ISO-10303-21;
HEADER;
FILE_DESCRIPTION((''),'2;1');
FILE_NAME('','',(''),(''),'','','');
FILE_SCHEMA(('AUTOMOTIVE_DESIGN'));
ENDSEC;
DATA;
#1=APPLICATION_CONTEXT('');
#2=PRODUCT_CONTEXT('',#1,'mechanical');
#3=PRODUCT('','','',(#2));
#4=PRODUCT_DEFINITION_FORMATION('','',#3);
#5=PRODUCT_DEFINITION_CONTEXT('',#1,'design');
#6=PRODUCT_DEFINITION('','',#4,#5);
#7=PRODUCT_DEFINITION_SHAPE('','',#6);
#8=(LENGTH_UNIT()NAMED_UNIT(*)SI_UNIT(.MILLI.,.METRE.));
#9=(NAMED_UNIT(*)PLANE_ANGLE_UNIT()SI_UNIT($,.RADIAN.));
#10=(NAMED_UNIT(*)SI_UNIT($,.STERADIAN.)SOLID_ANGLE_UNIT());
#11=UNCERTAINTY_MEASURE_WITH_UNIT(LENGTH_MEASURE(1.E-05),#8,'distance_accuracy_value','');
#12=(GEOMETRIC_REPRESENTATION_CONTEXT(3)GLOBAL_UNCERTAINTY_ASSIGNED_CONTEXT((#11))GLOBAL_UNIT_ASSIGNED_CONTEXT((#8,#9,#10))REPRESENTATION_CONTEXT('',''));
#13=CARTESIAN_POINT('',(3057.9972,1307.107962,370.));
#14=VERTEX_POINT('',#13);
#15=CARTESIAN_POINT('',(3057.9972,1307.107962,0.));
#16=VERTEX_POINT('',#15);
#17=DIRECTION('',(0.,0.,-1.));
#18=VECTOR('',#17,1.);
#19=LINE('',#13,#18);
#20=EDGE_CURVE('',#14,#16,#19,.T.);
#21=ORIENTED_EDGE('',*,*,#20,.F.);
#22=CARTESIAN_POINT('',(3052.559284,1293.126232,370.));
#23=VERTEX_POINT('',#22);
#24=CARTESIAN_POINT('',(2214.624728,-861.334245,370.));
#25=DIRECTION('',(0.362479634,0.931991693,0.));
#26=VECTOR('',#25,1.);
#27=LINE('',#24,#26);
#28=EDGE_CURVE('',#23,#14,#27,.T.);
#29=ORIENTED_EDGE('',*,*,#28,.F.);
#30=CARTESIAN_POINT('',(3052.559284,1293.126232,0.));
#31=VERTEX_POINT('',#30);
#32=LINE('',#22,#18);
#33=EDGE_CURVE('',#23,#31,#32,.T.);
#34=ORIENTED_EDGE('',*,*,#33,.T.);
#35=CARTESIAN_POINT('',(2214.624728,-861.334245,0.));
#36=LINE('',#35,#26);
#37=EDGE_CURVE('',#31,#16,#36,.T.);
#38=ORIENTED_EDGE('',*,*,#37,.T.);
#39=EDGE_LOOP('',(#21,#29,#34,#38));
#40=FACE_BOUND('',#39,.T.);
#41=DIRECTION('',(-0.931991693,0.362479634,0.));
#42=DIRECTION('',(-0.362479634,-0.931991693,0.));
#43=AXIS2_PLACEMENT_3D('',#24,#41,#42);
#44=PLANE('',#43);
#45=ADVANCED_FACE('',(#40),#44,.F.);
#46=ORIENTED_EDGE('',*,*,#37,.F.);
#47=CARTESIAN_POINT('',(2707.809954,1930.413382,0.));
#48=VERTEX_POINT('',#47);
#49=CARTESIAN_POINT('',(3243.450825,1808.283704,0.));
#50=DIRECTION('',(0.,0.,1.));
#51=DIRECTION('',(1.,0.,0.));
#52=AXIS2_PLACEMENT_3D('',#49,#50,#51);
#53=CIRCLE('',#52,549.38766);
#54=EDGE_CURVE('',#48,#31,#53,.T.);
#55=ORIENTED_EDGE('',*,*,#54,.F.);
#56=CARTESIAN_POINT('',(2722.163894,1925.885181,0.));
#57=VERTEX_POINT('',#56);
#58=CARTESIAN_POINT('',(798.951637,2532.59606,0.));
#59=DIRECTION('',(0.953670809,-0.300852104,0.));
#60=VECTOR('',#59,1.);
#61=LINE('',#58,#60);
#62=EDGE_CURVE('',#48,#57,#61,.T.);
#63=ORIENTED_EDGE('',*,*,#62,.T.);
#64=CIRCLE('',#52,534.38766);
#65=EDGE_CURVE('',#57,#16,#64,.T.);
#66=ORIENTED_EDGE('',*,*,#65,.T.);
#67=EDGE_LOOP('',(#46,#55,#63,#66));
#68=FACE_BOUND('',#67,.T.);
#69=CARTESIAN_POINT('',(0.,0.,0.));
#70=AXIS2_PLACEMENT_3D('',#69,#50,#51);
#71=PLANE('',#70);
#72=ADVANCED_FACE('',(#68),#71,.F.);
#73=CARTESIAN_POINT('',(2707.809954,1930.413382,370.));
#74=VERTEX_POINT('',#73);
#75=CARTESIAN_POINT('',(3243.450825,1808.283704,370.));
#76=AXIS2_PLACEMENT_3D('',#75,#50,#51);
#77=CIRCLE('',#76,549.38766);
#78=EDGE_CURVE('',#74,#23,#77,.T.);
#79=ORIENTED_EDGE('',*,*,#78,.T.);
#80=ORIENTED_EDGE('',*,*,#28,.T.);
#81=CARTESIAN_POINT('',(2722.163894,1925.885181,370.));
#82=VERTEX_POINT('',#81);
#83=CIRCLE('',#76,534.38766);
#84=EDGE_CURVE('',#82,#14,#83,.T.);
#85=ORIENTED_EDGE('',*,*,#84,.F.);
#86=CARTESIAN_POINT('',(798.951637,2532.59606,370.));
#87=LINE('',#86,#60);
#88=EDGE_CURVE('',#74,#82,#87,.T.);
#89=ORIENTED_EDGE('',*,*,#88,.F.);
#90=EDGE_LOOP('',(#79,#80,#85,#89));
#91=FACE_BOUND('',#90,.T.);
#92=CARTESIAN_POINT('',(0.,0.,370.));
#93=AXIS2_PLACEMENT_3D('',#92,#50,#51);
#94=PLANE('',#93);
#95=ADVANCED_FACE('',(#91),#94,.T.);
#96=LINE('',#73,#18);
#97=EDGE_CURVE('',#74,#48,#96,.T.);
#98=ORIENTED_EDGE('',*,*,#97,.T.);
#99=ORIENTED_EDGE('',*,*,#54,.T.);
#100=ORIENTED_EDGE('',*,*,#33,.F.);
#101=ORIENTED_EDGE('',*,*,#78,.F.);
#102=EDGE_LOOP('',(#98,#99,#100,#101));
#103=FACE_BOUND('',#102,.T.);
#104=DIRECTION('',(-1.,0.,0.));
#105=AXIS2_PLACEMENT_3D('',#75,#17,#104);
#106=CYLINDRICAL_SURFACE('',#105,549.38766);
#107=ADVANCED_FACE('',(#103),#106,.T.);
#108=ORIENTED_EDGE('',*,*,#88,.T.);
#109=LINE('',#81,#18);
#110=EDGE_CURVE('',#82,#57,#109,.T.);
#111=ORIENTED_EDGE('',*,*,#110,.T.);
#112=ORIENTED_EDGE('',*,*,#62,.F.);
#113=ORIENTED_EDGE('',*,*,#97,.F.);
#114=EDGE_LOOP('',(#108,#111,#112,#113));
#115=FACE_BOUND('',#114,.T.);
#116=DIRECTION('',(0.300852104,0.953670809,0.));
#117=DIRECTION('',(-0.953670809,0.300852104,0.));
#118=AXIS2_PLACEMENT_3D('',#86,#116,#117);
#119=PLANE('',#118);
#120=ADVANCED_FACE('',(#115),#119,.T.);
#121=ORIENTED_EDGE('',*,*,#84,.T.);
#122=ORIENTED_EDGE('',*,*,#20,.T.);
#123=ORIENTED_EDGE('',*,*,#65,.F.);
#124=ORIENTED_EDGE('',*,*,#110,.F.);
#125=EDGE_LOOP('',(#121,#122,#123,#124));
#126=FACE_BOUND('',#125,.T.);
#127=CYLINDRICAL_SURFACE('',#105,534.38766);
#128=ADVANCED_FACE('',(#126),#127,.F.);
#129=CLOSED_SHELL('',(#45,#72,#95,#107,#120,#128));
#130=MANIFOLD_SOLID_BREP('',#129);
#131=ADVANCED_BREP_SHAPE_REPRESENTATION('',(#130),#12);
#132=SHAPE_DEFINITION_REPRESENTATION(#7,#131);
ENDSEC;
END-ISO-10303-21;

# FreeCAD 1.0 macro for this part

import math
import FreeCAD as App
import Part
import Sketcher

doc = App.newDocument("Part")
params = doc.addObject("Spreadsheet::Sheet", "Params")
for row, (alias, value) in enumerate([
    ("pad1_length", "370 mm"),
], start=1):
    params.set(f"A{row}", alias)
    params.set(f"B{row}", "=" + value)
    params.setAlias(f"B{row}", alias)

body = doc.addObject("PartDesign::Body", "Body")

sketch1 = body.newObject("Sketcher::SketchObject", "Sketch")
sketch1.AttachmentSupport = (doc.getObject("XY_Plane"), [""])
sketch1.MapMode = "FlatFace"
sketch1.addGeometry(Part.ArcOfCircle(Part.Circle(App.Vector(3243.450825, 1808.283704, 0), App.Vector(0, 0, 1), 549.38766), math.radians(167.155755), math.radians(249.667819)), False)
sketch1.addGeometry(Part.LineSegment(App.Vector(3052.559284, 1293.126232, 0), App.Vector(3057.9972, 1307.107962, 0)), False)
sketch1.addGeometry(Part.ArcOfCircle(Part.Circle(App.Vector(3243.450825, 1808.283704, 0), App.Vector(0, 0, 1), 534.38766), math.radians(167.286989), math.radians(249.693656)), False)
sketch1.addGeometry(Part.LineSegment(App.Vector(2722.163894, 1925.885181, 0), App.Vector(2707.809954, 1930.413382, 0)), False)
sketch1.addConstraint(Sketcher.Constraint("Coincident", 0, 2, 1, 1))
sketch1.addConstraint(Sketcher.Constraint("Coincident", 1, 2, 2, 2))
sketch1.addConstraint(Sketcher.Constraint("Coincident", 2, 1, 3, 1))
sketch1.addConstraint(Sketcher.Constraint("Coincident", 3, 2, 0, 1))
sketch1.addConstraint(Sketcher.Constraint("Coincident", 2, 3, 0, 3))
sketch1.addConstraint(Sketcher.Constraint("Radius", 0, 549.38766))
sketch1.addConstraint(Sketcher.Constraint("Radius", 2, 534.38766))
sketch1.addConstraint(Sketcher.Constraint("DistanceX", -1, 1, 1, 2, 3057.9972))
sketch1.addConstraint(Sketcher.Constraint("DistanceY", 2, 1, 3, 2, 4.528201))
sketch1.addConstraint(Sketcher.Constraint("Distance", 1, 15.00199))
sketch1.addConstraint(Sketcher.Constraint("DistanceY", 1, 2, 2, 3, 501.175742))
sketch1.addConstraint(Sketcher.Constraint("DistanceX", 3, 2, 2, 3, 535.640871))
sketch1.addConstraint(Sketcher.Constraint("DistanceY", -1, 1, 0, 3, 1808.283704))
pad1 = body.newObject("PartDesign::Pad", "Pad")
pad1.Profile = sketch1
pad1.setExpression("Length", "Params.pad1_length")

doc.recompute()
